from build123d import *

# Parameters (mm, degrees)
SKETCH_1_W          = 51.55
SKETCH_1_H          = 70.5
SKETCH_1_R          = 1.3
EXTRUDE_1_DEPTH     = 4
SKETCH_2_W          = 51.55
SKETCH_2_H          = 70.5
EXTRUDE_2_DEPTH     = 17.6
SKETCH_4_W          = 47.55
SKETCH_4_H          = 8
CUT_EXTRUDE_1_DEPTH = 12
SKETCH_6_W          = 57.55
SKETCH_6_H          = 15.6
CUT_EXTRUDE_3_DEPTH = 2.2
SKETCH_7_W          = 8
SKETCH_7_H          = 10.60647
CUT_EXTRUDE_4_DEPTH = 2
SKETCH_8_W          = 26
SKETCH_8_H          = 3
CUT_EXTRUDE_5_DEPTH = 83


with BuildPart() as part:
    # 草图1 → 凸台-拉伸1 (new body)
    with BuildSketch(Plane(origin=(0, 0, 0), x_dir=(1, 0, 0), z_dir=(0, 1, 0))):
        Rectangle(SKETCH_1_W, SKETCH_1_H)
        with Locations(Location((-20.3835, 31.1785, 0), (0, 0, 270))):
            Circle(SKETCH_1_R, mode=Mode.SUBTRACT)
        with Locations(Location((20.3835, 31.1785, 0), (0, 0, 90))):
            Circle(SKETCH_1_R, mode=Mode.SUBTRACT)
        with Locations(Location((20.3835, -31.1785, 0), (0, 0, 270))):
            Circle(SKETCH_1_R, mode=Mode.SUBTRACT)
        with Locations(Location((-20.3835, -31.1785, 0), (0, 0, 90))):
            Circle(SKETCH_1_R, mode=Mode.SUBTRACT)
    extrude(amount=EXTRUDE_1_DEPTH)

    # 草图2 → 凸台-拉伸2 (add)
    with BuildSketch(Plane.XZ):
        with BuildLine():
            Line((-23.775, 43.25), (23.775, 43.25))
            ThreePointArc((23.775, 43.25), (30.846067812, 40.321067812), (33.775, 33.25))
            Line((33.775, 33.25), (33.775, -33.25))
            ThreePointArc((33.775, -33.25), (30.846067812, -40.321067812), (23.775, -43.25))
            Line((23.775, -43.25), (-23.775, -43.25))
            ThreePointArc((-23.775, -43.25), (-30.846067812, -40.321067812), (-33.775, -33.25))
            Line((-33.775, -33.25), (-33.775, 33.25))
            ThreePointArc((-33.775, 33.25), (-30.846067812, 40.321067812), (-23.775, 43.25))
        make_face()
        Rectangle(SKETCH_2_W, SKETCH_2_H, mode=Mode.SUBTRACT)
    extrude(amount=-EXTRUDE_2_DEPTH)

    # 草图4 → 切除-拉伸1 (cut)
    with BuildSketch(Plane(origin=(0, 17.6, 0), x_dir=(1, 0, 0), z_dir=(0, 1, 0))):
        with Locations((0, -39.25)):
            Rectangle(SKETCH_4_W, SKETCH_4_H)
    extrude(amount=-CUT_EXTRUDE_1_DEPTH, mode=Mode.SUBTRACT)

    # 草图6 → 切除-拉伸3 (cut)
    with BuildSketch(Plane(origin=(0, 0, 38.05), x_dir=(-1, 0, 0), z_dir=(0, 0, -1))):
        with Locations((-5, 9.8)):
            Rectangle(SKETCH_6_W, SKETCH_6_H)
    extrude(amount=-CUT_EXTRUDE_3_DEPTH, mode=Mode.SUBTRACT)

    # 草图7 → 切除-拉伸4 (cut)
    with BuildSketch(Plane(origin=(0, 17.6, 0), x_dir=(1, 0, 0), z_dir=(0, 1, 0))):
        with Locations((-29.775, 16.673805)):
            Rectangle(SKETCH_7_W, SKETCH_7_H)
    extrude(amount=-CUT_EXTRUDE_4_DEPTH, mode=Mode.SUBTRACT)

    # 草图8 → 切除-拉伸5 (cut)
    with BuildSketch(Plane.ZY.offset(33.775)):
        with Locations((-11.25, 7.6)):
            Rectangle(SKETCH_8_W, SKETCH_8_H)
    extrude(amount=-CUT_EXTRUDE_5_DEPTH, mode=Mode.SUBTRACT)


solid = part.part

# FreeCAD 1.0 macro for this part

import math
import FreeCAD as App
import Part
import Sketcher
from FreeCAD import Vector
Q = App.Units.Quantity


def add_polygon(sketch, points):
    """Adds a closed chain of lines whose ends are joined by coincident constraints."""
    first, n = sketch.GeometryCount, len(points)
    for a, b in zip(points, points[1:] + points[:1]):
        sketch.addGeometry(Part.LineSegment(App.Vector(*a, 0), App.Vector(*b, 0)), False)
    for i in range(n):
        sketch.addConstraint(Sketcher.Constraint("Coincident", first + i, 2, first + (i + 1) % n, 1))

doc = App.newDocument("Part")
body = doc.addObject("PartDesign::Body", "Body")

# Sketch on XZ plane
sketch1 = body.newObject("Sketcher::SketchObject", "Sketch")
sketch1.AttachmentSupport = (doc.getObject("XZ_Plane"), [""])
sketch1.MapMode = "FlatFace"
add_polygon(sketch1, [(-25.775, -35.25), (-25.775, 35.25), (25.775, 35.25), (25.775, -35.25)])  # lines 0-3
sketch1.addGeometry(Part.Circle(Vector(-20.3835, 31.1785, 0), Vector(0, 0, 1), 1.3), False)  # 4
sketch1.addGeometry(Part.Circle(Vector(20.3835, 31.1785, 0), Vector(0, 0, 1), 1.3), False)  # 5
sketch1.addGeometry(Part.Circle(Vector(-20.3835, -31.1785, 0), Vector(0, 0, 1), 1.3), False)  # 6
sketch1.addGeometry(Part.Circle(Vector(20.3835, -31.1785, 0), Vector(0, 0, 1), 1.3), False)  # 7
sketch1.addConstraint([
    Sketcher.Constraint("Vertical", 0),
    Sketcher.Constraint("Horizontal", 1),
    Sketcher.Constraint("Vertical", 2),
    Sketcher.Constraint("Horizontal", 3),
    Sketcher.Constraint("Equal", 4, 5),
    Sketcher.Constraint("Equal", 5, 6),
    Sketcher.Constraint("Equal", 6, 7),
    Sketcher.Constraint("Symmetric", 5, 3, 6, 3, -1, 1),
    Sketcher.Constraint("Symmetric", 4, 3, 7, 3, -1, 1),
    Sketcher.Constraint("Symmetric", 0, 2, 2, 2, -1, 1),
    Sketcher.Constraint("Symmetric", 4, 3, 5, 3, -2),
    Sketcher.Constraint("Diameter", 4, Q("2.6 mm")),
    Sketcher.Constraint("DistanceY", 0, 1, 0, 2, Q("70.5 mm")),
    Sketcher.Constraint("DistanceX", 1, 1, 1, 2, Q("51.55 mm")),
    Sketcher.Constraint("DistanceX", 4, 3, 5, 3, Q("40.767 mm")),
    Sketcher.Constraint("DistanceY", 6, 3, 4, 3, Q("62.357 mm")),
])
pad1 = body.newObject("PartDesign::Pad", "Pad")
pad1.Profile = sketch1
pad1.Length = 4
pad1.Reversed = True

# Sketch on XZ plane
sketch2 = body.newObject("Sketcher::SketchObject", "Sketch001")
sketch2.AttachmentSupport = (doc.getObject("XZ_Plane"), [""])
sketch2.MapMode = "FlatFace"
sketch2.addGeometry(Part.LineSegment(Vector(23.775, 43.25, 0), Vector(-23.775, 43.25, 0)), False)  # 0
sketch2.addGeometry(Part.ArcOfCircle(Part.Circle(Vector(-23.775, 33.25, 0), Vector(0, 0, 1), 10), math.radians(90), math.radians(180)), False)  # 1
sketch2.addGeometry(Part.LineSegment(Vector(-33.775, 33.25, 0), Vector(-33.775, -33.25, 0)), False)  # 2
sketch2.addGeometry(Part.ArcOfCircle(Part.Circle(Vector(-23.775, -33.25, 0), Vector(0, 0, 1), 10), math.radians(180), math.radians(270)), False)  # 3
sketch2.addGeometry(Part.LineSegment(Vector(-23.775, -43.25, 0), Vector(23.775, -43.25, 0)), False)  # 4
sketch2.addGeometry(Part.ArcOfCircle(Part.Circle(Vector(23.775, -33.25, 0), Vector(0, 0, 1), 10), math.radians(-90), math.radians(0)), False)  # 5
sketch2.addGeometry(Part.LineSegment(Vector(33.775, -33.25, 0), Vector(33.775, 33.25, 0)), False)  # 6
sketch2.addGeometry(Part.ArcOfCircle(Part.Circle(Vector(23.775, 33.25, 0), Vector(0, 0, 1), 10), math.radians(0), math.radians(90)), False)  # 7
add_polygon(sketch2, [(-25.775, -35.25), (-25.775, 35.25), (25.775, 35.25), (25.775, -35.25)])  # lines 8-11
sketch2.addConstraint([
    Sketcher.Constraint("Tangent", 0, 2, 1, 1),
    Sketcher.Constraint("Tangent", 1, 2, 2, 1),
    Sketcher.Constraint("Tangent", 2, 2, 3, 1),
    Sketcher.Constraint("Tangent", 3, 2, 4, 1),
    Sketcher.Constraint("Tangent", 4, 2, 5, 1),
    Sketcher.Constraint("Tangent", 5, 2, 6, 1),
    Sketcher.Constraint("Tangent", 6, 2, 7, 1),
    Sketcher.Constraint("Tangent", 7, 2, 0, 1),
    Sketcher.Constraint("Horizontal", 0),
    Sketcher.Constraint("Vertical", 2),
    Sketcher.Constraint("Horizontal", 4),
    Sketcher.Constraint("Vertical", 6),
    Sketcher.Constraint("Vertical", 8),
    Sketcher.Constraint("Horizontal", 9),
    Sketcher.Constraint("Vertical", 10),
    Sketcher.Constraint("Horizontal", 11),
    Sketcher.Constraint("Equal", 1, 3),
    Sketcher.Constraint("Equal", 3, 5),
    Sketcher.Constraint("Equal", 5, 7),
    Sketcher.Constraint("Symmetric", 1, 3, 5, 3, -1, 1),
    Sketcher.Constraint("Symmetric", 8, 2, 10, 2, -1, 1),
    Sketcher.Constraint("Radius", 1, Q("10 mm")),
    Sketcher.Constraint("DistanceY", 2, 2, 2, 1, Q("66.5 mm")),
    Sketcher.Constraint("DistanceY", 8, 1, 8, 2, Q("70.5 mm")),
    Sketcher.Constraint("DistanceX", 8, 2, 1, 3, Q("2 mm")),
    Sketcher.Constraint("DistanceX", 0, 2, 0, 1, Q("47.55 mm")),
])
pad2 = body.newObject("PartDesign::Pad", "Pad001")
pad2.Profile = sketch2
pad2.Length = 17.6
pad2.Reversed = True

# Sketch on XZ plane
sketch3 = body.newObject("Sketcher::SketchObject", "Sketch002")
sketch3.AttachmentSupport = (doc.getObject("XZ_Plane"), [""])
sketch3.MapMode = "FlatFace"
sketch3.AttachmentOffset = App.Placement(Vector(0, 0, -17.6), App.Rotation())
add_polygon(sketch3, [(-23.775, 35.25), (-23.775, 43.25), (23.775, 43.25), (23.775, 35.25)])  # lines 0-3
sketch3.addConstraint([
    Sketcher.Constraint("Vertical", 0),
    Sketcher.Constraint("Horizontal", 1),
    Sketcher.Constraint("Vertical", 2),
    Sketcher.Constraint("Horizontal", 3),
    Sketcher.Constraint("DistanceY", 0, 1, 0, 2, Q("8 mm")),
    Sketcher.Constraint("DistanceX", 1, 1, 1, 2, Q("47.55 mm")),
    Sketcher.Constraint("DistanceY", -1, 1, 0, 2, Q("43.25 mm")),
    Sketcher.Constraint("DistanceX", 0, 2, -1, 1, Q("23.775 mm")),
])
pocket1 = body.newObject("PartDesign::Pocket", "Pocket")
pocket1.Profile = sketch3
pocket1.Length = 12
pocket1.Reversed = True

# Sketch on XY plane
sketch4 = body.newObject("Sketcher::SketchObject", "Sketch003")
sketch4.AttachmentSupport = (doc.getObject("XY_Plane"), [""])
sketch4.MapMode = "FlatFace"
sketch4.AttachmentOffset = App.Placement(Vector(0, 0, 38.05), App.Rotation())
add_polygon(sketch4, [(33.775, 17.6), (33.775, 2), (-23.775, 2), (-23.775, 17.6)])  # lines 0-3
sketch4.addConstraint([
    Sketcher.Constraint("Vertical", 0),
    Sketcher.Constraint("Horizontal", 1),
    Sketcher.Constraint("Vertical", 2),
    Sketcher.Constraint("Horizontal", 3),
    Sketcher.Constraint("DistanceY", 0, 2, 0, 1, Q("15.6 mm")),
    Sketcher.Constraint("DistanceY", -1, 1, 0, 2, Q("2 mm")),
    Sketcher.Constraint("DistanceX", 1, 2, 1, 1, Q("57.55 mm")),
    Sketcher.Constraint("DistanceX", -1, 1, 0, 2, Q("33.775 mm")),
])
pocket2 = body.newObject("PartDesign::Pocket", "Pocket001")
pocket2.Profile = sketch4
pocket2.Length = 2.2
pocket2.Reversed = True

# Sketch on XZ plane
sketch5 = body.newObject("Sketcher::SketchObject", "Sketch004")
sketch5.AttachmentSupport = (doc.getObject("XZ_Plane"), [""])
sketch5.MapMode = "FlatFace"
sketch5.AttachmentOffset = App.Placement(Vector(0, 0, -17.6), App.Rotation())
add_polygon(sketch5, [(-33.775, -21.97704), (-33.775, -11.37057), (-25.775, -11.37057), (-25.775, -21.97704)])  # lines 0-3
sketch5.addConstraint([
    Sketcher.Constraint("Vertical", 0),
    Sketcher.Constraint("Horizontal", 1),
    Sketcher.Constraint("Vertical", 2),
    Sketcher.Constraint("Horizontal", 3),
    Sketcher.Constraint("DistanceX", 1, 1, 1, 2, Q("8 mm")),
    Sketcher.Constraint("DistanceX", 0, 2, -1, 1, Q("33.775 mm")),
    Sketcher.Constraint("DistanceY", 0, 1, 0, 2, Q("10.60647 mm")),
    Sketcher.Constraint("DistanceY", 0, 2, -1, 1, Q("11.37057 mm")),
])
pocket3 = body.newObject("PartDesign::Pocket", "Pocket002")
pocket3.Profile = sketch5
pocket3.Length = 2
pocket3.Reversed = True

# Sketch on YZ plane
sketch6 = body.newObject("Sketcher::SketchObject", "Sketch005")
sketch6.AttachmentSupport = (doc.getObject("YZ_Plane"), [""])
sketch6.MapMode = "FlatFace"
sketch6.AttachmentOffset = App.Placement(Vector(0, 0, -33.775), App.Rotation())
add_polygon(sketch6, [(9.1, -24.25), (6.1, -24.25), (6.1, 1.75), (9.1, 1.75)])  # lines 0-3
sketch6.addConstraint([
    Sketcher.Constraint("Horizontal", 0),
    Sketcher.Constraint("Vertical", 1),
    Sketcher.Constraint("Horizontal", 2),
    Sketcher.Constraint("Vertical", 3),
    Sketcher.Constraint("DistanceX", 0, 2, 0, 1, Q("3 mm")),
    Sketcher.Constraint("DistanceY", 1, 1, 1, 2, Q("26 mm")),
    Sketcher.Constraint("DistanceX", -1, 1, 0, 2, Q("6.1 mm")),
    Sketcher.Constraint("DistanceY", 0, 2, -1, 1, Q("24.25 mm")),
])
pocket4 = body.newObject("PartDesign::Pocket", "Pocket003")
pocket4.Profile = sketch6
pocket4.Length = 83
pocket4.Reversed = True

doc.recompute()
